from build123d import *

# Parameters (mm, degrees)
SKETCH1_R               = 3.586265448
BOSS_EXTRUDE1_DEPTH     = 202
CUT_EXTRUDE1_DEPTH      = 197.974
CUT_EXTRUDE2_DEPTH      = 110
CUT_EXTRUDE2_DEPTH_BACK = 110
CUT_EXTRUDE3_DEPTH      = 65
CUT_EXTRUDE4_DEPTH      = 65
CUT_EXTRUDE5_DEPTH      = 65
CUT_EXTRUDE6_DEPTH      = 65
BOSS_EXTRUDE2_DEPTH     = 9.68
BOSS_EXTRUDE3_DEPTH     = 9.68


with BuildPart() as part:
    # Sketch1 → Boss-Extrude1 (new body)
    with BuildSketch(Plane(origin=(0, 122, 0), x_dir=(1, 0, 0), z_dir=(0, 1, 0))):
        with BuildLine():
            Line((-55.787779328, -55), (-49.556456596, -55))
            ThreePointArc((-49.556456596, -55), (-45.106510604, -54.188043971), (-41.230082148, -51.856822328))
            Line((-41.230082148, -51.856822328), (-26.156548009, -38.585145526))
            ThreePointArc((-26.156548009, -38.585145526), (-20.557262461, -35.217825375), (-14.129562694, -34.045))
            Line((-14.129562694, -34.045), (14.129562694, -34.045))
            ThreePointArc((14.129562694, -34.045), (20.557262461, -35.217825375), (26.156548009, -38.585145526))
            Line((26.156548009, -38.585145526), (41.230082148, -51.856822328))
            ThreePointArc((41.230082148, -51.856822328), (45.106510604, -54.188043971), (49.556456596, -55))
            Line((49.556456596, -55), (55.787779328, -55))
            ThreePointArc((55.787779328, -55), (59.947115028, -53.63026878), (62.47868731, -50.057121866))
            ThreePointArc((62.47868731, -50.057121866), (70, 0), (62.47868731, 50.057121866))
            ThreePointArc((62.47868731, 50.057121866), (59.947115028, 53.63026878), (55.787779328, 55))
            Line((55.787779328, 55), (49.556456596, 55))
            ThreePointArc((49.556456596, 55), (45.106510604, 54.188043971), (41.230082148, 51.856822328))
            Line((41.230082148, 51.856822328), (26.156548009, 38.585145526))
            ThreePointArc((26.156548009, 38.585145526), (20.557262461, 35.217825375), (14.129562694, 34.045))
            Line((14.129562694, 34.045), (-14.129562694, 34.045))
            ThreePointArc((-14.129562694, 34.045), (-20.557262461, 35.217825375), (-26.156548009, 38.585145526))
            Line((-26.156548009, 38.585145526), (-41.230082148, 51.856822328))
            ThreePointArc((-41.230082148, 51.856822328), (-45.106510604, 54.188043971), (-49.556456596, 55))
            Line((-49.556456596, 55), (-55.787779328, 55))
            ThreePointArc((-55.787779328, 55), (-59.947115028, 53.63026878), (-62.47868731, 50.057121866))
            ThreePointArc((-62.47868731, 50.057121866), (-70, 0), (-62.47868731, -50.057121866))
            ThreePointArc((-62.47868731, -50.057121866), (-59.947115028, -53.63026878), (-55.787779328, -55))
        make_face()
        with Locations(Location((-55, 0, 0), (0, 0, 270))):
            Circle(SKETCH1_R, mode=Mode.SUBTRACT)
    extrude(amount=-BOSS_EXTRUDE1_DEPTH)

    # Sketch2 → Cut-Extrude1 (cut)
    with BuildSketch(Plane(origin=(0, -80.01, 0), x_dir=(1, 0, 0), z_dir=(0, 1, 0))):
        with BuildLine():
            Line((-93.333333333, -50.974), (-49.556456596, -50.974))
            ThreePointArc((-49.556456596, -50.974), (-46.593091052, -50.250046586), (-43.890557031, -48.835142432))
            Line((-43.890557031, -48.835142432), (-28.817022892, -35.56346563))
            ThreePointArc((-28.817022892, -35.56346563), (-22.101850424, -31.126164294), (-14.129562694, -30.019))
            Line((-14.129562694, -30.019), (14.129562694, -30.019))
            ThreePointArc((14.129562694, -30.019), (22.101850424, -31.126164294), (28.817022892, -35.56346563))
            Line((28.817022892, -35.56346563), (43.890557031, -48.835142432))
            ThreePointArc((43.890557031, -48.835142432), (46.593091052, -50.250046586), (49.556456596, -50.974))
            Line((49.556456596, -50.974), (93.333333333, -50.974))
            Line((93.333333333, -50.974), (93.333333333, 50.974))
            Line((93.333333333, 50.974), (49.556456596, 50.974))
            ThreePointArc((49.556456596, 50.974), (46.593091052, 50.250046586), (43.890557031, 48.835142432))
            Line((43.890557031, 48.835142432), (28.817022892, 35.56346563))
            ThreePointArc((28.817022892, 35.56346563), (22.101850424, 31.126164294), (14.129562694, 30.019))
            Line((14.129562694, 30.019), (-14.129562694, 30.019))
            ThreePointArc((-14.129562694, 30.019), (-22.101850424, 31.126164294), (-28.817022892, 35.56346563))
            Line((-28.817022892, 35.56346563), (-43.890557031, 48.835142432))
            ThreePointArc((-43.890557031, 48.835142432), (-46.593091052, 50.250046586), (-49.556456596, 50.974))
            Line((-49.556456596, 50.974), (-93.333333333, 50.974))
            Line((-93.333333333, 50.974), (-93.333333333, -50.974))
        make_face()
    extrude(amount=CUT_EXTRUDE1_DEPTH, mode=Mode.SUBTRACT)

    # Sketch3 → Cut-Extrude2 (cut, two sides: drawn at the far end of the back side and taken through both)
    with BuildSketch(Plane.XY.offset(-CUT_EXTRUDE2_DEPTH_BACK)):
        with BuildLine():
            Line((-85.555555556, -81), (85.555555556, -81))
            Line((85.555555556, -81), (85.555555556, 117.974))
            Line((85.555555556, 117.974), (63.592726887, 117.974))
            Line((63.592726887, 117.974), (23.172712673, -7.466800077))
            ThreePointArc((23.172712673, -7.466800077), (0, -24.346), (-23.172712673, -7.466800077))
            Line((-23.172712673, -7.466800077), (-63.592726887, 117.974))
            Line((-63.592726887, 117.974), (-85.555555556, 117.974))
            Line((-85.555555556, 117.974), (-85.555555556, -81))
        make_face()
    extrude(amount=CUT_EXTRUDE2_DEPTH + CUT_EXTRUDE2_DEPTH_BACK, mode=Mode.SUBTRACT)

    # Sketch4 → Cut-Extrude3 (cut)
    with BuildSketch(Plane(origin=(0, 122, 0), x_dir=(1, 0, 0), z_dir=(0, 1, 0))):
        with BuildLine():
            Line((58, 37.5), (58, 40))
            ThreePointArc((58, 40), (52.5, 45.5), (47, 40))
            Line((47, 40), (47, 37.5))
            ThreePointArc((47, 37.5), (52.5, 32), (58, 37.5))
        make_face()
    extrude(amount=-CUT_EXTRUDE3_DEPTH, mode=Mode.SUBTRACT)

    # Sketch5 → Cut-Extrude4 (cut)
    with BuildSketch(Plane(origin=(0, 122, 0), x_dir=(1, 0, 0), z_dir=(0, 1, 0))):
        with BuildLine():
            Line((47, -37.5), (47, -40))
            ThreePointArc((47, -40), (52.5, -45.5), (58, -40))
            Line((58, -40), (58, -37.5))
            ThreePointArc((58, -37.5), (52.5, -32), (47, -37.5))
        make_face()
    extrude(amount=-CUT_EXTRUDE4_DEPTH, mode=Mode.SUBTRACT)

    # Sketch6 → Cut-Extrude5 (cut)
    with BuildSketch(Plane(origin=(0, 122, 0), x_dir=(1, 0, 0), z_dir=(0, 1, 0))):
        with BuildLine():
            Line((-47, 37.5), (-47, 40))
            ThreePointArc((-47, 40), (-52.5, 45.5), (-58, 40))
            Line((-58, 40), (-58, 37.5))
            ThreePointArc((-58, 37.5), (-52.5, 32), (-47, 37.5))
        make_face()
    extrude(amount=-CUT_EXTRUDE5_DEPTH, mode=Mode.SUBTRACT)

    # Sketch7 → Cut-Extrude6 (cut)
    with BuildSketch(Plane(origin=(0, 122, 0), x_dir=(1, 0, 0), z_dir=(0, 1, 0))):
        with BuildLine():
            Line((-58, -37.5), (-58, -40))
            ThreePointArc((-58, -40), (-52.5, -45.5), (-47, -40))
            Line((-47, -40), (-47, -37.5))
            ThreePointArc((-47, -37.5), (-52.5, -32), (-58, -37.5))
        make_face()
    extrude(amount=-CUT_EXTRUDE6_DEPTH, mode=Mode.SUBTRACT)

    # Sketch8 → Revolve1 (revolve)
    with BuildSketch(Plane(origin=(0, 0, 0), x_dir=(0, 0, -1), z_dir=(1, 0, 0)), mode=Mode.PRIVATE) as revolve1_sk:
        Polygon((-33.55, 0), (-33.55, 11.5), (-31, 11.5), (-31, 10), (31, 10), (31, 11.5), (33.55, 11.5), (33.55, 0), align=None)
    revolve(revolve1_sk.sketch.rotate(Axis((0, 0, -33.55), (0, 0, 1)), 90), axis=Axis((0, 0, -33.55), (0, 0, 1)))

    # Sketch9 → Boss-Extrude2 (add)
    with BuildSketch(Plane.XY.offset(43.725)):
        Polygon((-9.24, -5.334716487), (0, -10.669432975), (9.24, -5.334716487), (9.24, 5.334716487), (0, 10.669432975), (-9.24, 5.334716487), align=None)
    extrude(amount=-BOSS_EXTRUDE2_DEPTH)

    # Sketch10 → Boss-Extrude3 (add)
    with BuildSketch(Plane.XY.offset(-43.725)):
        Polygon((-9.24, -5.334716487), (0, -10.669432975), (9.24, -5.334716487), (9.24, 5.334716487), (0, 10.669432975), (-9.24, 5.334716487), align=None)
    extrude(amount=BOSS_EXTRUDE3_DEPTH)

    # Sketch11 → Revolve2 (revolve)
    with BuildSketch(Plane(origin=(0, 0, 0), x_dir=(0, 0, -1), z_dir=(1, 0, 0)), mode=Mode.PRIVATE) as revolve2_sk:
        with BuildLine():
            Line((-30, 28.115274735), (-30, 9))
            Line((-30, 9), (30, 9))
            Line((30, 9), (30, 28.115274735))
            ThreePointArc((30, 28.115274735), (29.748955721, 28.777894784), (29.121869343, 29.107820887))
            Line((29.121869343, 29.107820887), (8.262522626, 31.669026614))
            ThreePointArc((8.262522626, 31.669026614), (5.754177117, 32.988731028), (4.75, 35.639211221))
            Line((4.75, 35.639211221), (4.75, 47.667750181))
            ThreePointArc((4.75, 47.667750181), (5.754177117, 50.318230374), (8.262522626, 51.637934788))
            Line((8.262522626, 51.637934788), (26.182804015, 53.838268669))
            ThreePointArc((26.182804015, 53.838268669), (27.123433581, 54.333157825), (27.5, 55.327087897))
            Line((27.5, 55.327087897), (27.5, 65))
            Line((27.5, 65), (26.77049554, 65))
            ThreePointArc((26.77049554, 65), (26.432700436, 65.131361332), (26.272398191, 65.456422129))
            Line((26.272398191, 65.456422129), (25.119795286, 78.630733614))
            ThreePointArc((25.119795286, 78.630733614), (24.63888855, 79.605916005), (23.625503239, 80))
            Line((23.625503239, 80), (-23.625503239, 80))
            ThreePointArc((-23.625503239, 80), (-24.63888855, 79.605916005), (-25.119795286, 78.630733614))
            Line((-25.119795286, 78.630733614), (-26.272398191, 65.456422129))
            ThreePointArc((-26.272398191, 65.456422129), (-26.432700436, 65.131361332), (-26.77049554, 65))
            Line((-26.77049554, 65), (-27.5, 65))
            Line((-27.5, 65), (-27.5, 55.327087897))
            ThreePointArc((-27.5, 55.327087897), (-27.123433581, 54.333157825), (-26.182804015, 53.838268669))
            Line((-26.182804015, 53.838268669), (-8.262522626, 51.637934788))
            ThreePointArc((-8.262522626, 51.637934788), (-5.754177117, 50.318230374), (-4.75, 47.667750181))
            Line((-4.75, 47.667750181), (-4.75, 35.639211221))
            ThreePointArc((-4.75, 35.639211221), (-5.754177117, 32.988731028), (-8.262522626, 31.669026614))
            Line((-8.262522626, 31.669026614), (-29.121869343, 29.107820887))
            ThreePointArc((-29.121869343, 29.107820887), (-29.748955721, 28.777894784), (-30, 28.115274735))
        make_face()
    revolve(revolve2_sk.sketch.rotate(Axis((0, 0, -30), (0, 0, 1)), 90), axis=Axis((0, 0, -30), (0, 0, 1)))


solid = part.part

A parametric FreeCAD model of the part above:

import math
import FreeCAD as App
import Part
import Sketcher

V = App.Vector
Q = App.Units.Quantity


def add_polygon(sketch, points):
    """Adds a closed chain of lines whose ends are joined by coincident constraints."""
    first, n = sketch.GeometryCount, len(points)
    for a, b in zip(points, points[1:] + points[:1]):
        sketch.addGeometry(Part.LineSegment(App.Vector(*a, 0), App.Vector(*b, 0)), False)
    for i in range(n):
        sketch.addConstraint(Sketcher.Constraint("Coincident", first + i, 2, first + (i + 1) % n, 1))

doc = App.newDocument("Part")
params = doc.addObject("Spreadsheet::Sheet", "Params")
for row, (alias, value) in enumerate([
    ("sketch1_radius", "7 mm"),
    ("sketch1_radius2", "12.6 mm"),
    ("sketch1_radius3", "18.2 mm"),
    ("pad1_length", "202 mm"),
    ("sketch2_radius", "12.6 mm"),
    ("sketch2_radius2", "18.2 mm"),
    ("pocket1_length", "197.974 mm"),
    ("sketch4_radius", "5.5 mm"),
    ("sketch4_height", "2.5 mm"),
    ("pocket3_length", "65 mm"),
    ("sketch5_radius", "5.5 mm"),
    ("sketch5_height", "2.5 mm"),
    ("pocket4_length", "65 mm"),
    ("sketch6_radius", "5.5 mm"),
    ("sketch6_height", "2.5 mm"),
    ("pocket5_length", "65 mm"),
    ("sketch7_radius", "5.5 mm"),
    ("sketch7_height", "2.5 mm"),
    ("pocket6_length", "65 mm"),
    ("sketch8_height", "62 mm"),
    ("sketch8_width", "11.5 mm"),
    ("sketch8_width2", "1.5 mm"),
    ("sketch8_height2", "67.1 mm"),
    ("revolution_angle", "360 deg"),
    ("pad2_length", "9.68 mm"),
    ("pad3_length", "9.68 mm"),
    ("sketch11_radius", "1 mm"),
    ("sketch11_radius2", "4 mm"),
    ("sketch11_radius3", "1.5 mm"),
    ("sketch11_radius4", "0.5 mm"),
    ("sketch11_height", "60 mm"),
    ("revolution2_angle", "360 deg"),
], start=1):
    params.set(f"A{row}", alias)
    params.set(f"B{row}", "=" + value)
    params.setAlias(f"B{row}", alias)

body = doc.addObject("PartDesign::Body", "Body")

# Sketch on XZ plane
sketch1 = body.newObject("Sketcher::SketchObject", "Sketch")
sketch1.AttachmentSupport = (doc.getObject("XZ_Plane"), [""])
sketch1.MapMode = "FlatFace"
sketch1.AttachmentOffset = App.Placement(V(0, 0, -122), App.Rotation())
sketch1.addGeometry(Part.LineSegment(V(-55.8, 55, 0), V(-49.6, 55, 0)), False)
sketch1.addGeometry(Part.ArcOfCircle(Part.Circle(V(-49.6, 42.4, 0), V(0, 0, 1), 12.6), math.radians(49), math.radians(90)), False)
sketch1.addGeometry(Part.LineSegment(V(-41.2, 51.9, 0), V(-26.2, 38.6, 0)), False)
sketch1.addGeometry(Part.ArcOfCircle(Part.Circle(V(-14.1, 52.2, 0), V(0, 0, 1), 18.2), math.radians(-131), math.radians(-90)), False)
sketch1.addGeometry(Part.LineSegment(V(-14.1, 34, 0), V(14.1, 34, 0)), False)
sketch1.addGeometry(Part.ArcOfCircle(Part.Circle(V(14.1, 52.2, 0), V(0, 0, 1), 18.2), math.radians(-90), math.radians(-49)), False)
sketch1.addGeometry(Part.LineSegment(V(26.2, 38.6, 0), V(41.2, 51.9, 0)), False)
sketch1.addGeometry(Part.ArcOfCircle(Part.Circle(V(49.6, 42.4, 0), V(0, 0, 1), 12.6), math.radians(90), math.radians(131)), False)
sketch1.addGeometry(Part.LineSegment(V(49.6, 55, 0), V(55.8, 55, 0)), False)
sketch1.addGeometry(Part.ArcOfCircle(Part.Circle(V(55.8, 48, 0), V(0, 0, 1), 7), math.radians(17), math.radians(90)), False)
sketch1.addGeometry(Part.ArcOfCircle(Part.Circle(V(-100.3, 0, 0), V(0, 0, 1), 170.3), math.radians(-17), math.radians(17)), False)
sketch1.addGeometry(Part.ArcOfCircle(Part.Circle(V(55.8, -48, 0), V(0, 0, 1), 7), math.radians(-90), math.radians(-17)), False)
sketch1.addGeometry(Part.LineSegment(V(55.8, -55, 0), V(49.6, -55, 0)), False)
sketch1.addGeometry(Part.ArcOfCircle(Part.Circle(V(49.6, -42.4, 0), V(0, 0, 1), 12.6), math.radians(-131), math.radians(-90)), False)
sketch1.addGeometry(Part.LineSegment(V(41.2, -51.9, 0), V(26.2, -38.6, 0)), False)
sketch1.addGeometry(Part.ArcOfCircle(Part.Circle(V(14.1, -52.2, 0), V(0, 0, 1), 18.2), math.radians(49), math.radians(90)), False)
sketch1.addGeometry(Part.LineSegment(V(14.1, -34, 0), V(-14.1, -34, 0)), False)
sketch1.addGeometry(Part.ArcOfCircle(Part.Circle(V(-14.1, -52.2, 0), V(0, 0, 1), 18.2), math.radians(90), math.radians(131)), False)
sketch1.addGeometry(Part.LineSegment(V(-26.2, -38.6, 0), V(-41.2, -51.9, 0)), False)
sketch1.addGeometry(Part.ArcOfCircle(Part.Circle(V(-49.6, -42.4, 0), V(0, 0, 1), 12.6), math.radians(-90), math.radians(-49)), False)
sketch1.addGeometry(Part.LineSegment(V(-49.6, -55, 0), V(-55.8, -55, 0)), False)
sketch1.addGeometry(Part.ArcOfCircle(Part.Circle(V(-55.8, -48, 0), V(0, 0, 1), 7), math.radians(-163), math.radians(-90)), False)
sketch1.addGeometry(Part.ArcOfCircle(Part.Circle(V(100.3, 0, 0), V(0, 0, 1), 170.3), math.radians(163), math.radians(197)), False)
sketch1.addGeometry(Part.ArcOfCircle(Part.Circle(V(-55.8, 48, 0), V(0, 0, 1), 7), math.radians(90), math.radians(163)), False)
sketch1.addGeometry(Part.Circle(V(-55, 0, 0), V(0, 0, 1), 3.6), False)
sketch1.addConstraint(Sketcher.Constraint("Tangent", 0, 2, 1, 2))
sketch1.addConstraint(Sketcher.Constraint("Tangent", 1, 1, 2, 1))
sketch1.addConstraint(Sketcher.Constraint("Tangent", 2, 2, 3, 1))
sketch1.addConstraint(Sketcher.Constraint("Tangent", 3, 2, 4, 1))
sketch1.addConstraint(Sketcher.Constraint("Tangent", 4, 2, 5, 1))
sketch1.addConstraint(Sketcher.Constraint("Tangent", 5, 2, 6, 1))
sketch1.addConstraint(Sketcher.Constraint("Tangent", 6, 2, 7, 2))
sketch1.addConstraint(Sketcher.Constraint("Tangent", 7, 1, 8, 1))
sketch1.addConstraint(Sketcher.Constraint("Tangent", 8, 2, 9, 2))
sketch1.addConstraint(Sketcher.Constraint("Tangent", 9, 1, 10, 2))
sketch1.addConstraint(Sketcher.Constraint("Tangent", 10, 1, 11, 2))
sketch1.addConstraint(Sketcher.Constraint("Tangent", 11, 1, 12, 1))
sketch1.addConstraint(Sketcher.Constraint("Tangent", 12, 2, 13, 2))
sketch1.addConstraint(Sketcher.Constraint("Tangent", 13, 1, 14, 1))
sketch1.addConstraint(Sketcher.Constraint("Tangent", 14, 2, 15, 1))
sketch1.addConstraint(Sketcher.Constraint("Tangent", 15, 2, 16, 1))
sketch1.addConstraint(Sketcher.Constraint("Tangent", 16, 2, 17, 1))
sketch1.addConstraint(Sketcher.Constraint("Tangent", 17, 2, 18, 1))
sketch1.addConstraint(Sketcher.Constraint("Tangent", 18, 2, 19, 2))
sketch1.addConstraint(Sketcher.Constraint("Tangent", 19, 1, 20, 1))
sketch1.addConstraint(Sketcher.Constraint("Tangent", 20, 2, 21, 2))
sketch1.addConstraint(Sketcher.Constraint("Tangent", 21, 1, 22, 2))
sketch1.addConstraint(Sketcher.Constraint("Tangent", 22, 1, 23, 2))
sketch1.addConstraint(Sketcher.Constraint("Tangent", 23, 1, 0, 1))
sketch1.addConstraint(Sketcher.Constraint("Horizontal", 0))
sketch1.addConstraint(Sketcher.Constraint("Horizontal", 4))
sketch1.addConstraint(Sketcher.Constraint("Horizontal", 8))
sketch1.addConstraint(Sketcher.Constraint("Horizontal", 12))
sketch1.addConstraint(Sketcher.Constraint("Horizontal", 16))
sketch1.addConstraint(Sketcher.Constraint("Horizontal", 20))
sketch1.addConstraint(Sketcher.Constraint("Equal", 3, 5))
sketch1.addConstraint(Sketcher.Constraint("Equal", 1, 7))
sketch1.addConstraint(Sketcher.Constraint("Equal", 9, 11))
sketch1.addConstraint(Sketcher.Constraint("Equal", 7, 13))
sketch1.addConstraint(Sketcher.Constraint("Equal", 5, 15))
sketch1.addConstraint(Sketcher.Constraint("Equal", 15, 17))
sketch1.addConstraint(Sketcher.Constraint("Equal", 13, 19))
sketch1.addConstraint(Sketcher.Constraint("Equal", 11, 21))
sketch1.addConstraint(Sketcher.Constraint("Equal", 10, 22))
sketch1.addConstraint(Sketcher.Constraint("Equal", 21, 23))
sketch1.addConstraint(Sketcher.Constraint("Symmetric", 1, 3, 13, 3, -1, 1))
sketch1.addConstraint(Sketcher.Constraint("Symmetric", 3, 3, 15, 3, -1, 1))
sketch1.addConstraint(Sketcher.Constraint("Symmetric", 7, 3, 19, 3, -1, 1))
sketch1.addConstraint(Sketcher.Constraint("Symmetric", 10, 3, 22, 3, -1, 1))
sketch1.addConstraint(Sketcher.Constraint("Symmetric", 1, 3, 7, 3, -2))
sketch1.addConstraint(Sketcher.Constraint("PointOnObject", 10, 3, -1))
sketch1.addConstraint(Sketcher.Constraint("PointOnObject", 24, 3, -1))
sketch1.addConstraint(Sketcher.Constraint("Parallel", 6, 18))
sketch1.addConstraint(Sketcher.Constraint("Horizontal", 2, 2, 5, 2))
sketch1.addConstraint(Sketcher.Constraint("Radius", 9, 7.0))
sketch1.addConstraint(Sketcher.Constraint("Radius", 1, 12.6))
sketch1.addConstraint(Sketcher.Constraint("Radius", 3, 18.2))
sketch1.addConstraint(Sketcher.Constraint("DistanceY", -1, 1, 9, 3, 48.0))
sketch1.addConstraint(Sketcher.Constraint("DistanceX", 24, 3, -1, 1, 55.0))
sketch1.addConstraint(Sketcher.Constraint("Radius", 10, 170.335))
sketch1.addConstraint(Sketcher.Constraint("Diameter", 24, 7.172531))
sketch1.addConstraint(Sketcher.Constraint("DistanceY", 15, 3, 5, 3, 104.49))
sketch1.addConstraint(Sketcher.Constraint("DistanceX", 10, 3, -1, 1, 100.335))
sketch1.addConstraint(Sketcher.Constraint("DistanceY", 9, 1, 6, 2, 1.7997))
sketch1.addConstraint(Sketcher.Constraint("DistanceX", 0, 1, 0, 2, 6.231323))
sketch1.setExpression("Constraints[49]", "Params.sketch1_radius")
sketch1.setExpression("Constraints[50]", "Params.sketch1_radius2")
sketch1.setExpression("Constraints[51]", "Params.sketch1_radius3")
pad1 = body.newObject("PartDesign::Pad", "Pad")
pad1.Profile = sketch1
pad1.setExpression("Length", "Params.pad1_length")

# Sketch on XZ plane
sketch2 = body.newObject("Sketcher::SketchObject", "Sketch001")
sketch2.AttachmentSupport = (doc.getObject("XZ_Plane"), [""])
sketch2.MapMode = "FlatFace"
sketch2.AttachmentOffset = App.Placement(V(0, 0, 80.01), App.Rotation())
sketch2.addGeometry(Part.LineSegment(V(-93, 51, 0), V(-50, 51, 0)), False)
sketch2.addGeometry(Part.ArcOfCircle(Part.Circle(V(-51, 38, 0), V(0, 0, 1), 13), math.radians(55), math.radians(83)), False)
sketch2.addGeometry(Part.LineSegment(V(-44, 49, 0), V(-29, 36, 0)), False)
sketch2.addGeometry(Part.ArcOfCircle(Part.Circle(V(-16, 48, 0), V(0, 0, 1), 18), math.radians(-136), math.radians(-85)), False)
sketch2.addGeometry(Part.LineSegment(V(-14, 30, 0), V(14, 30, 0)), False)
sketch2.addGeometry(Part.ArcOfCircle(Part.Circle(V(16, 48, 0), V(0, 0, 1), 18), math.radians(-95), math.radians(-44)), False)
sketch2.addGeometry(Part.LineSegment(V(29, 36, 0), V(44, 49, 0)), False)
sketch2.addGeometry(Part.ArcOfCircle(Part.Circle(V(51, 38, 0), V(0, 0, 1), 13), math.radians(97), math.radians(125)), False)
sketch2.addGeometry(Part.LineSegment(V(50, 51, 0), V(93, 51, 0)), False)
sketch2.addGeometry(Part.LineSegment(V(93, 51, 0), V(93, -51, 0)), False)
sketch2.addGeometry(Part.LineSegment(V(93, -51, 0), V(50, -51, 0)), False)
sketch2.addGeometry(Part.ArcOfCircle(Part.Circle(V(51, -38, 0), V(0, 0, 1), 13), math.radians(-125), math.radians(-97)), False)
sketch2.addGeometry(Part.LineSegment(V(44, -49, 0), V(29, -36, 0)), False)
sketch2.addGeometry(Part.ArcOfCircle(Part.Circle(V(16, -48, 0), V(0, 0, 1), 18), math.radians(44), math.radians(95)), False)
sketch2.addGeometry(Part.LineSegment(V(14, -30, 0), V(-14, -30, 0)), False)
sketch2.addGeometry(Part.ArcOfCircle(Part.Circle(V(-16, -48, 0), V(0, 0, 1), 18), math.radians(85), math.radians(136)), False)
sketch2.addGeometry(Part.LineSegment(V(-29, -36, 0), V(-44, -49, 0)), False)
sketch2.addGeometry(Part.ArcOfCircle(Part.Circle(V(-51, -38, 0), V(0, 0, 1), 13), math.radians(-83), math.radians(-55)), False)
sketch2.addGeometry(Part.LineSegment(V(-50, -51, 0), V(-93, -51, 0)), False)
sketch2.addGeometry(Part.LineSegment(V(-93, -51, 0), V(-93, 51, 0)), False)
sketch2.addConstraint(Sketcher.Constraint("Coincident", 0, 2, 1, 2))
sketch2.addConstraint(Sketcher.Constraint("Coincident", 1, 1, 2, 1))
sketch2.addConstraint(Sketcher.Constraint("Coincident", 2, 2, 3, 1))
sketch2.addConstraint(Sketcher.Constraint("Coincident", 3, 2, 4, 1))
sketch2.addConstraint(Sketcher.Constraint("Coincident", 4, 2, 5, 1))
sketch2.addConstraint(Sketcher.Constraint("Coincident", 5, 2, 6, 1))
sketch2.addConstraint(Sketcher.Constraint("Coincident", 6, 2, 7, 2))
sketch2.addConstraint(Sketcher.Constraint("Coincident", 7, 1, 8, 1))
sketch2.addConstraint(Sketcher.Constraint("Coincident", 8, 2, 9, 1))
sketch2.addConstraint(Sketcher.Constraint("Coincident", 9, 2, 10, 1))
sketch2.addConstraint(Sketcher.Constraint("Coincident", 10, 2, 11, 2))
sketch2.addConstraint(Sketcher.Constraint("Coincident", 11, 1, 12, 1))
sketch2.addConstraint(Sketcher.Constraint("Coincident", 12, 2, 13, 1))
sketch2.addConstraint(Sketcher.Constraint("Coincident", 13, 2, 14, 1))
sketch2.addConstraint(Sketcher.Constraint("Coincident", 14, 2, 15, 1))
sketch2.addConstraint(Sketcher.Constraint("Coincident", 15, 2, 16, 1))
sketch2.addConstraint(Sketcher.Constraint("Coincident", 16, 2, 17, 2))
sketch2.addConstraint(Sketcher.Constraint("Coincident", 17, 1, 18, 1))
sketch2.addConstraint(Sketcher.Constraint("Coincident", 18, 2, 19, 1))
sketch2.addConstraint(Sketcher.Constraint("Coincident", 19, 2, 0, 1))
sketch2.addConstraint(Sketcher.Constraint("Horizontal", 0))
sketch2.addConstraint(Sketcher.Constraint("Horizontal", 4))
sketch2.addConstraint(Sketcher.Constraint("Horizontal", 8))
sketch2.addConstraint(Sketcher.Constraint("Vertical", 9))
sketch2.addConstraint(Sketcher.Constraint("Horizontal", 10))
sketch2.addConstraint(Sketcher.Constraint("Horizontal", 14))
sketch2.addConstraint(Sketcher.Constraint("Horizontal", 18))
sketch2.addConstraint(Sketcher.Constraint("Vertical", 19))
sketch2.addConstraint(Sketcher.Constraint("Equal", 3, 5))
sketch2.addConstraint(Sketcher.Constraint("Equal", 1, 7))
sketch2.addConstraint(Sketcher.Constraint("Equal", 7, 11))
sketch2.addConstraint(Sketcher.Constraint("Equal", 5, 13))
sketch2.addConstraint(Sketcher.Constraint("Equal", 13, 15))
sketch2.addConstraint(Sketcher.Constraint("Equal", 11, 17))
sketch2.addConstraint(Sketcher.Constraint("Symmetric", 1, 3, 11, 3, -1, 1))
sketch2.addConstraint(Sketcher.Constraint("Symmetric", 3, 3, 13, 3, -1, 1))
sketch2.addConstraint(Sketcher.Constraint("Symmetric", 5, 3, 15, 3, -1, 1))
sketch2.addConstraint(Sketcher.Constraint("Symmetric", 7, 3, 17, 3, -1, 1))
sketch2.addConstraint(Sketcher.Constraint("Symmetric", 8, 2, 18, 2, -1, 1))
sketch2.addConstraint(Sketcher.Constraint("Symmetric", 3, 3, 5, 3, -2))
sketch2.addConstraint(Sketcher.Constraint("Symmetric", 1, 3, 7, 3, -2))
sketch2.addConstraint(Sketcher.Constraint("Parallel", 2, 12))
sketch2.addConstraint(Sketcher.Constraint("Parallel", 6, 16))
sketch2.addConstraint(Sketcher.Constraint("Horizontal", 2, 2, 5, 2))
sketch2.addConstraint(Sketcher.Constraint("Horizontal", 1, 1, 6, 2))
sketch2.addConstraint(Sketcher.Constraint("Horizontal", 0, 2, 7, 1))
sketch2.addConstraint(Sketcher.Constraint("Horizontal", 12, 2, 15, 2))
sketch2.addConstraint(Sketcher.Constraint("Horizontal", 10, 2, 17, 1))
sketch2.addConstraint(Sketcher.Constraint("Vertical", 6, 2, 11, 1))
sketch2.addConstraint(Sketcher.Constraint("Vertical", 4, 2, 13, 2))
sketch2.addConstraint(Sketcher.Constraint("Radius", 1, 12.6))
sketch2.addConstraint(Sketcher.Constraint("Radius", 3, 18.2))
sketch2.addConstraint(Sketcher.Constraint("DistanceY", 9, 2, 9, 1, 101.948))
sketch2.addConstraint(Sketcher.Constraint("DistanceY", -1, 1, 3, 2, 30.019))
sketch2.addConstraint(Sketcher.Constraint("DistanceX", 3, 3, 5, 3, 31.348301))
sketch2.addConstraint(Sketcher.Constraint("DistanceX", 0, 2, 1, 1, 5.6659))
sketch2.addConstraint(Sketcher.Constraint("DistanceX", 0, 1, 0, 2, 43.776877))
sketch2.addConstraint(Sketcher.Constraint("DistanceX", 4, 1, 4, 2, 28.259125))
sketch2.addConstraint(Sketcher.Constraint("DistanceY", 11, 3, 5, 3, 86.615342))
sketch2.addConstraint(Sketcher.Constraint("DistanceX", 2, 2, 3, 2, 14.68746))
sketch2.addConstraint(Sketcher.Constraint("DistanceX", 5, 2, 8, 2, 64.51631))
sketch2.setExpression("Constraints[50]", "Params.sketch2_radius")
sketch2.setExpression("Constraints[51]", "Params.sketch2_radius2")
pocket1 = body.newObject("PartDesign::Pocket", "Pocket")
pocket1.Profile = sketch2
pocket1.setExpression("Length", "Params.pocket1_length")

# Sketch on XY plane
sketch3 = body.newObject("Sketcher::SketchObject", "Sketch002")
sketch3.AttachmentSupport = (doc.getObject("XY_Plane"), [""])
sketch3.MapMode = "FlatFace"
sketch3.addGeometry(Part.LineSegment(V(-86, -81, 0), V(86, -81, 0)), False)
sketch3.addGeometry(Part.LineSegment(V(86, -81, 0), V(86, 118, 0)), False)
sketch3.addGeometry(Part.LineSegment(V(86, 118, 0), V(64, 118, 0)), False)
sketch3.addGeometry(Part.LineSegment(V(64, 118, 0), V(23, -7, 0)), False)
sketch3.addGeometry(Part.ArcOfCircle(Part.Circle(V(0, 0, 0), V(0, 0, 1), 24), math.radians(-162), math.radians(-18)), False)
sketch3.addGeometry(Part.LineSegment(V(-23, -7, 0), V(-64, 118, 0)), False)
sketch3.addGeometry(Part.LineSegment(V(-64, 118, 0), V(-86, 118, 0)), False)
sketch3.addGeometry(Part.LineSegment(V(-86, 118, 0), V(-86, -81, 0)), False)
sketch3.addConstraint(Sketcher.Constraint("Coincident", 0, 2, 1, 1))
sketch3.addConstraint(Sketcher.Constraint("Coincident", 1, 2, 2, 1))
sketch3.addConstraint(Sketcher.Constraint("Coincident", 2, 2, 3, 1))
sketch3.addConstraint(Sketcher.Constraint("Tangent", 3, 2, 4, 2))
sketch3.addConstraint(Sketcher.Constraint("Tangent", 4, 1, 5, 1))
sketch3.addConstraint(Sketcher.Constraint("Coincident", 5, 2, 6, 1))
sketch3.addConstraint(Sketcher.Constraint("Coincident", 6, 2, 7, 1))
sketch3.addConstraint(Sketcher.Constraint("Coincident", 7, 2, 0, 1))
sketch3.addConstraint(Sketcher.Constraint("Horizontal", 0))
sketch3.addConstraint(Sketcher.Constraint("Vertical", 1))
sketch3.addConstraint(Sketcher.Constraint("Horizontal", 2))
sketch3.addConstraint(Sketcher.Constraint("Horizontal", 6))
sketch3.addConstraint(Sketcher.Constraint("Vertical", 7))
sketch3.addConstraint(Sketcher.Constraint("Coincident", 4, 3, -1, 1))
sketch3.addConstraint(Sketcher.Constraint("Symmetric", 2, 2, 5, 2, -2))
sketch3.addConstraint(Sketcher.Constraint("Equal", 2, 6))
sketch3.addConstraint(Sketcher.Constraint("DistanceY", 0, 2, -1, 1, 81.0))
sketch3.addConstraint(Sketcher.Constraint("Radius", 4, 24.346))
sketch3.addConstraint(Sketcher.Constraint("DistanceY", 1, 1, 1, 2, 198.974))
sketch3.addConstraint(Sketcher.Constraint("DistanceX", 0, 1, 0, 2, 171.111111))
sketch3.addConstraint(Sketcher.Constraint("DistanceX", 2, 2, 2, 1, 21.962829))
pocket2 = body.newObject("PartDesign::Pocket", "Pocket001")
pocket2.Profile = sketch3
pocket2.Type = "ThroughAll"
pocket2.Midplane = True

# Sketch on XZ plane
sketch4 = body.newObject("Sketcher::SketchObject", "Sketch003")
sketch4.AttachmentSupport = (doc.getObject("XZ_Plane"), [""])
sketch4.MapMode = "FlatFace"
sketch4.AttachmentOffset = App.Placement(V(0, 0, -122), App.Rotation())
sketch4.addGeometry(Part.LineSegment(V(58, -37.5, 0), V(58, -40, 0)), False)
sketch4.addGeometry(Part.ArcOfCircle(Part.Circle(V(52.5, -40, 0), V(0, 0, 1), 5.5), math.radians(180), math.radians(360)), False)
sketch4.addGeometry(Part.LineSegment(V(47, -40, 0), V(47, -37.5, 0)), False)
sketch4.addGeometry(Part.ArcOfCircle(Part.Circle(V(52.5, -37.5, 0), V(0, 0, 1), 5.5), math.radians(0), math.radians(180)), False)
sketch4.addConstraint(Sketcher.Constraint("Tangent", 0, 2, 1, 2))
sketch4.addConstraint(Sketcher.Constraint("Tangent", 1, 1, 2, 1))
sketch4.addConstraint(Sketcher.Constraint("Tangent", 2, 2, 3, 2))
sketch4.addConstraint(Sketcher.Constraint("Tangent", 3, 1, 0, 1))
sketch4.addConstraint(Sketcher.Constraint("Vertical", 0))
sketch4.addConstraint(Sketcher.Constraint("Vertical", 2))
sketch4.addConstraint(Sketcher.Constraint("Radius", 1, 5.5))
sketch4.addConstraint(Sketcher.Constraint("DistanceY", 0, 2, 0, 1, 2.5))
sketch4.addConstraint(Sketcher.Constraint("DistanceY", 1, 3, -1, 1, 40.0))
sketch4.addConstraint(Sketcher.Constraint("DistanceX", -1, 1, 0, 2, 58.0))
sketch4.setExpression("Constraints[6]", "Params.sketch4_radius")
sketch4.setExpression("Constraints[7]", "Params.sketch4_height")
pocket3 = body.newObject("PartDesign::Pocket", "Pocket002")
pocket3.Profile = sketch4
pocket3.setExpression("Length", "Params.pocket3_length")
pocket3.Reversed = True

# Sketch on XZ plane
sketch5 = body.newObject("Sketcher::SketchObject", "Sketch004")
sketch5.AttachmentSupport = (doc.getObject("XZ_Plane"), [""])
sketch5.MapMode = "FlatFace"
sketch5.AttachmentOffset = App.Placement(V(0, 0, -122), App.Rotation())
sketch5.addGeometry(Part.LineSegment(V(47, 37.5, 0), V(47, 40, 0)), False)
sketch5.addGeometry(Part.ArcOfCircle(Part.Circle(V(52.5, 40, 0), V(0, 0, 1), 5.5), math.radians(0), math.radians(180)), False)
sketch5.addGeometry(Part.LineSegment(V(58, 40, 0), V(58, 37.5, 0)), False)
sketch5.addGeometry(Part.ArcOfCircle(Part.Circle(V(52.5, 37.5, 0), V(0, 0, 1), 5.5), math.radians(180), math.radians(360)), False)
sketch5.addConstraint(Sketcher.Constraint("Tangent", 0, 2, 1, 2))
sketch5.addConstraint(Sketcher.Constraint("Tangent", 1, 1, 2, 1))
sketch5.addConstraint(Sketcher.Constraint("Tangent", 2, 2, 3, 2))
sketch5.addConstraint(Sketcher.Constraint("Tangent", 3, 1, 0, 1))
sketch5.addConstraint(Sketcher.Constraint("Vertical", 0))
sketch5.addConstraint(Sketcher.Constraint("Vertical", 2))
sketch5.addConstraint(Sketcher.Constraint("Radius", 1, 5.5))
sketch5.addConstraint(Sketcher.Constraint("DistanceY", 0, 1, 0, 2, 2.5))
sketch5.addConstraint(Sketcher.Constraint("DistanceY", -1, 1, 1, 3, 40.0))
sketch5.addConstraint(Sketcher.Constraint("DistanceX", -1, 1, 0, 2, 47.0))
sketch5.setExpression("Constraints[6]", "Params.sketch5_radius")
sketch5.setExpression("Constraints[7]", "Params.sketch5_height")
pocket4 = body.newObject("PartDesign::Pocket", "Pocket003")
pocket4.Profile = sketch5
pocket4.setExpression("Length", "Params.pocket4_length")
pocket4.Reversed = True

# Sketch on XZ plane
sketch6 = body.newObject("Sketcher::SketchObject", "Sketch005")
sketch6.AttachmentSupport = (doc.getObject("XZ_Plane"), [""])
sketch6.MapMode = "FlatFace"
sketch6.AttachmentOffset = App.Placement(V(0, 0, -122), App.Rotation())
sketch6.addGeometry(Part.LineSegment(V(-47, -37.5, 0), V(-47, -40, 0)), False)
sketch6.addGeometry(Part.ArcOfCircle(Part.Circle(V(-52.5, -40, 0), V(0, 0, 1), 5.5), math.radians(180), math.radians(360)), False)
sketch6.addGeometry(Part.LineSegment(V(-58, -40, 0), V(-58, -37.5, 0)), False)
sketch6.addGeometry(Part.ArcOfCircle(Part.Circle(V(-52.5, -37.5, 0), V(0, 0, 1), 5.5), math.radians(0), math.radians(180)), False)
sketch6.addConstraint(Sketcher.Constraint("Tangent", 0, 2, 1, 2))
sketch6.addConstraint(Sketcher.Constraint("Tangent", 1, 1, 2, 1))
sketch6.addConstraint(Sketcher.Constraint("Tangent", 2, 2, 3, 2))
sketch6.addConstraint(Sketcher.Constraint("Tangent", 3, 1, 0, 1))
sketch6.addConstraint(Sketcher.Constraint("Vertical", 0))
sketch6.addConstraint(Sketcher.Constraint("Vertical", 2))
sketch6.addConstraint(Sketcher.Constraint("Radius", 1, 5.5))
sketch6.addConstraint(Sketcher.Constraint("DistanceY", 0, 2, 0, 1, 2.5))
sketch6.addConstraint(Sketcher.Constraint("DistanceY", 1, 3, -1, 1, 40.0))
sketch6.addConstraint(Sketcher.Constraint("DistanceX", 0, 2, -1, 1, 47.0))
sketch6.setExpression("Constraints[6]", "Params.sketch6_radius")
sketch6.setExpression("Constraints[7]", "Params.sketch6_height")
pocket5 = body.newObject("PartDesign::Pocket", "Pocket004")
pocket5.Profile = sketch6
pocket5.setExpression("Length", "Params.pocket5_length")
pocket5.Reversed = True

# Sketch on XZ plane
sketch7 = body.newObject("Sketcher::SketchObject", "Sketch006")
sketch7.AttachmentSupport = (doc.getObject("XZ_Plane"), [""])
sketch7.MapMode = "FlatFace"
sketch7.AttachmentOffset = App.Placement(V(0, 0, -122), App.Rotation())
sketch7.addGeometry(Part.LineSegment(V(-58, 37.5, 0), V(-58, 40, 0)), False)
sketch7.addGeometry(Part.ArcOfCircle(Part.Circle(V(-52.5, 40, 0), V(0, 0, 1), 5.5), math.radians(0), math.radians(180)), False)
sketch7.addGeometry(Part.LineSegment(V(-47, 40, 0), V(-47, 37.5, 0)), False)
sketch7.addGeometry(Part.ArcOfCircle(Part.Circle(V(-52.5, 37.5, 0), V(0, 0, 1), 5.5), math.radians(180), math.radians(360)), False)
sketch7.addConstraint(Sketcher.Constraint("Tangent", 0, 2, 1, 2))
sketch7.addConstraint(Sketcher.Constraint("Tangent", 1, 1, 2, 1))
sketch7.addConstraint(Sketcher.Constraint("Tangent", 2, 2, 3, 2))
sketch7.addConstraint(Sketcher.Constraint("Tangent", 3, 1, 0, 1))
sketch7.addConstraint(Sketcher.Constraint("Vertical", 0))
sketch7.addConstraint(Sketcher.Constraint("Vertical", 2))
sketch7.addConstraint(Sketcher.Constraint("Radius", 1, 5.5))
sketch7.addConstraint(Sketcher.Constraint("DistanceY", 0, 1, 0, 2, 2.5))
sketch7.addConstraint(Sketcher.Constraint("DistanceY", -1, 1, 1, 3, 40.0))
sketch7.addConstraint(Sketcher.Constraint("DistanceX", 0, 2, -1, 1, 58.0))
sketch7.setExpression("Constraints[6]", "Params.sketch7_radius")
sketch7.setExpression("Constraints[7]", "Params.sketch7_height")
pocket6 = body.newObject("PartDesign::Pocket", "Pocket005")
pocket6.Profile = sketch7
pocket6.setExpression("Length", "Params.pocket6_length")
pocket6.Reversed = True

# Sketch on YZ plane
sketch8 = body.newObject("Sketcher::SketchObject", "Sketch007")
sketch8.AttachmentSupport = (doc.getObject("YZ_Plane"), [""])
sketch8.MapMode = "FlatFace"
add_polygon(sketch8, [(11.5, 33.5), (0, 33.5), (0, -33.5), (11.5, -33.5), (11.5, -31), (10, -31), (10, 31), (11.5, 31)])  # lines 0-7
sketch8.addConstraint(Sketcher.Constraint("Horizontal", 0))
sketch8.addConstraint(Sketcher.Constraint("Vertical", 1))
sketch8.addConstraint(Sketcher.Constraint("Horizontal", 2))
sketch8.addConstraint(Sketcher.Constraint("Vertical", 3))
sketch8.addConstraint(Sketcher.Constraint("Horizontal", 4))
sketch8.addConstraint(Sketcher.Constraint("Vertical", 5))
sketch8.addConstraint(Sketcher.Constraint("Horizontal", 6))
sketch8.addConstraint(Sketcher.Constraint("Vertical", 7))
sketch8.addConstraint(Sketcher.Constraint("Symmetric", 0, 2, 1, 2, -1, 1))
sketch8.addConstraint(Sketcher.Constraint("Symmetric", 3, 2, 6, 2, -1))
sketch8.addConstraint(Sketcher.Constraint("DistanceY", 5, 1, 5, 2, 62.0))
sketch8.addConstraint(Sketcher.Constraint("DistanceX", 0, 2, 0, 1, 11.5))
sketch8.addConstraint(Sketcher.Constraint("DistanceX", 4, 2, 4, 1, 1.5))
sketch8.addConstraint(Sketcher.Constraint("DistanceY", 1, 2, 1, 1, 67.1))
sketch8.setExpression("Constraints[18]", "Params.sketch8_height")
sketch8.setExpression("Constraints[19]", "Params.sketch8_width")
sketch8.setExpression("Constraints[20]", "Params.sketch8_width2")
sketch8.setExpression("Constraints[21]", "Params.sketch8_height2")
revolution = body.newObject("PartDesign::Revolution", "Revolution")
revolution.Profile = sketch8
revolution.ReferenceAxis = (sketch8, ["V_Axis"])
revolution.setExpression("Angle", "Params.revolution_angle")

# Sketch on XY plane
sketch9 = body.newObject("Sketcher::SketchObject", "Sketch008")
sketch9.AttachmentSupport = (doc.getObject("XY_Plane"), [""])
sketch9.MapMode = "FlatFace"
sketch9.AttachmentOffset = App.Placement(V(0, 0, 43.725), App.Rotation())
add_polygon(sketch9, [(-9, -5), (0, -11), (9, -5), (9, 5), (0, 11), (-9, 5)])  # lines 0-5
sketch9.addConstraint(Sketcher.Constraint("Vertical", 2))
sketch9.addConstraint(Sketcher.Constraint("Vertical", 5))
sketch9.addConstraint(Sketcher.Constraint("Symmetric", 0, 2, 3, 2, -1, 1))
sketch9.addConstraint(Sketcher.Constraint("Symmetric", 1, 2, 4, 2, -1, 1))
sketch9.addConstraint(Sketcher.Constraint("PointOnObject", 0, 2, -2))
sketch9.addConstraint(Sketcher.Constraint("Parallel", 0, 3))
sketch9.addConstraint(Sketcher.Constraint("Horizontal", 2, 2, 4, 2))
sketch9.addConstraint(Sketcher.Constraint("Angle", 0, Q("-30 deg")))
sketch9.addConstraint(Sketcher.Constraint("DistanceX", -1, 1, 1, 2, 9.24))
sketch9.addConstraint(Sketcher.Constraint("DistanceY", 2, 1, 2, 2, 10.669433))
pad2 = body.newObject("PartDesign::Pad", "Pad001")
pad2.Profile = sketch9
pad2.setExpression("Length", "Params.pad2_length")
pad2.Reversed = True

# Sketch on XY plane
sketch10 = body.newObject("Sketcher::SketchObject", "Sketch009")
sketch10.AttachmentSupport = (doc.getObject("XY_Plane"), [""])
sketch10.MapMode = "FlatFace"
sketch10.AttachmentOffset = App.Placement(V(0, 0, -43.725), App.Rotation())
add_polygon(sketch10, [(-9, -5), (0, -11), (9, -5), (9, 5), (0, 11), (-9, 5)])  # lines 0-5
sketch10.addConstraint(Sketcher.Constraint("Vertical", 2))
sketch10.addConstraint(Sketcher.Constraint("Vertical", 5))
sketch10.addConstraint(Sketcher.Constraint("Symmetric", 0, 2, 3, 2, -1, 1))
sketch10.addConstraint(Sketcher.Constraint("Symmetric", 1, 2, 4, 2, -1, 1))
sketch10.addConstraint(Sketcher.Constraint("PointOnObject", 0, 2, -2))
sketch10.addConstraint(Sketcher.Constraint("Parallel", 0, 3))
sketch10.addConstraint(Sketcher.Constraint("Horizontal", 2, 2, 4, 2))
sketch10.addConstraint(Sketcher.Constraint("Angle", 0, Q("-30 deg")))
sketch10.addConstraint(Sketcher.Constraint("DistanceX", -1, 1, 1, 2, 9.24))
sketch10.addConstraint(Sketcher.Constraint("DistanceY", 2, 1, 2, 2, 10.669433))
pad3 = body.newObject("PartDesign::Pad", "Pad002")
pad3.Profile = sketch10
pad3.setExpression("Length", "Params.pad3_length")

# Sketch on YZ plane
sketch11 = body.newObject("Sketcher::SketchObject", "Sketch010")
sketch11.AttachmentSupport = (doc.getObject("YZ_Plane"), [""])
sketch11.MapMode = "FlatFace"
sketch11.addGeometry(Part.LineSegment(V(28.1, 30, 0), V(9, 30, 0)), False)
sketch11.addGeometry(Part.LineSegment(V(9, 30, 0), V(9, -30, 0)), False)
sketch11.addGeometry(Part.LineSegment(V(9, -30, 0), V(28.1, -30, 0)), False)
sketch11.addGeometry(Part.ArcOfCircle(Part.Circle(V(28.1, -29, 0), V(0, 0, 1), 1), math.radians(-90), math.radians(-7)), False)
sketch11.addGeometry(Part.LineSegment(V(29.1, -29.1, 0), V(31.7, -8.3, 0)), False)
sketch11.addGeometry(Part.ArcOfCircle(Part.Circle(V(35.6, -8.8, 0), V(0, 0, 1), 4), math.radians(90), math.radians(173)), False)
sketch11.addGeometry(Part.LineSegment(V(35.6, -4.8, 0), V(47.7, -4.8, 0)), False)
sketch11.addGeometry(Part.ArcOfCircle(Part.Circle(V(47.7, -8.8, 0), V(0, 0, 1), 4), math.radians(7), math.radians(90)), False)
sketch11.addGeometry(Part.LineSegment(V(51.6, -8.3, 0), V(53.8, -26.2, 0)), False)
sketch11.addGeometry(Part.ArcOfCircle(Part.Circle(V(55.3, -26, 0), V(0, 0, 1), 1.5), math.radians(-173), math.radians(-90)), False)
sketch11.addGeometry(Part.LineSegment(V(55.3, -27.5, 0), V(65, -27.5, 0)), False)
sketch11.addGeometry(Part.LineSegment(V(65, -27.5, 0), V(65, -26.8, 0)), False)
sketch11.addGeometry(Part.ArcOfCircle(Part.Circle(V(65.5, -26.8, 0), V(0, 0, 1), 0.5), math.radians(95), math.radians(180)), False)
sketch11.addGeometry(Part.LineSegment(V(65.5, -26.3, 0), V(78.6, -25.1, 0)), False)
sketch11.addGeometry(Part.ArcOfCircle(Part.Circle(V(78.5, -23.6, 0), V(0, 0, 1), 1.5), math.radians(-85), math.radians(0)), False)
sketch11.addGeometry(Part.LineSegment(V(80, -23.6, 0), V(80, 23.6, 0)), False)
sketch11.addGeometry(Part.ArcOfCircle(Part.Circle(V(78.5, 23.6, 0), V(0, 0, 1), 1.5), math.radians(0), math.radians(85)), False)
sketch11.addGeometry(Part.LineSegment(V(78.6, 25.1, 0), V(65.5, 26.3, 0)), False)
sketch11.addGeometry(Part.ArcOfCircle(Part.Circle(V(65.5, 26.8, 0), V(0, 0, 1), 0.5), math.radians(180), math.radians(265)), False)
sketch11.addGeometry(Part.LineSegment(V(65, 26.8, 0), V(65, 27.5, 0)), False)
sketch11.addGeometry(Part.LineSegment(V(65, 27.5, 0), V(55.3, 27.5, 0)), False)
sketch11.addGeometry(Part.ArcOfCircle(Part.Circle(V(55.3, 26, 0), V(0, 0, 1), 1.5), math.radians(90), math.radians(173)), False)
sketch11.addGeometry(Part.LineSegment(V(53.8, 26.2, 0), V(51.6, 8.3, 0)), False)
sketch11.addGeometry(Part.ArcOfCircle(Part.Circle(V(47.7, 8.8, 0), V(0, 0, 1), 4), math.radians(-90), math.radians(-7)), False)
sketch11.addGeometry(Part.LineSegment(V(47.7, 4.8, 0), V(35.6, 4.8, 0)), False)
sketch11.addGeometry(Part.ArcOfCircle(Part.Circle(V(35.6, 8.8, 0), V(0, 0, 1), 4), math.radians(-173), math.radians(-90)), False)
sketch11.addGeometry(Part.LineSegment(V(31.7, 8.3, 0), V(29.1, 29.1, 0)), False)
sketch11.addGeometry(Part.ArcOfCircle(Part.Circle(V(28.1, 29, 0), V(0, 0, 1), 1), math.radians(7), math.radians(90)), False)
sketch11.addConstraint(Sketcher.Constraint("Coincident", 0, 2, 1, 1))
sketch11.addConstraint(Sketcher.Constraint("Coincident", 1, 2, 2, 1))
sketch11.addConstraint(Sketcher.Constraint("Tangent", 2, 2, 3, 1))
sketch11.addConstraint(Sketcher.Constraint("Tangent", 3, 2, 4, 1))
sketch11.addConstraint(Sketcher.Constraint("Tangent", 4, 2, 5, 2))
sketch11.addConstraint(Sketcher.Constraint("Tangent", 5, 1, 6, 1))
sketch11.addConstraint(Sketcher.Constraint("Tangent", 6, 2, 7, 2))
sketch11.addConstraint(Sketcher.Constraint("Tangent", 7, 1, 8, 1))
sketch11.addConstraint(Sketcher.Constraint("Tangent", 8, 2, 9, 1))
sketch11.addConstraint(Sketcher.Constraint("Tangent", 9, 2, 10, 1))
sketch11.addConstraint(Sketcher.Constraint("Coincident", 10, 2, 11, 1))
sketch11.addConstraint(Sketcher.Constraint("Tangent", 11, 2, 12, 2))
sketch11.addConstraint(Sketcher.Constraint("Tangent", 12, 1, 13, 1))
sketch11.addConstraint(Sketcher.Constraint("Tangent", 13, 2, 14, 1))
sketch11.addConstraint(Sketcher.Constraint("Tangent", 14, 2, 15, 1))
sketch11.addConstraint(Sketcher.Constraint("Tangent", 15, 2, 16, 1))
sketch11.addConstraint(Sketcher.Constraint("Tangent", 16, 2, 17, 1))
sketch11.addConstraint(Sketcher.Constraint("Tangent", 17, 2, 18, 2))
sketch11.addConstraint(Sketcher.Constraint("Tangent", 18, 1, 19, 1))
sketch11.addConstraint(Sketcher.Constraint("Coincident", 19, 2, 20, 1))
sketch11.addConstraint(Sketcher.Constraint("Tangent", 20, 2, 21, 1))
sketch11.addConstraint(Sketcher.Constraint("Tangent", 21, 2, 22, 1))
sketch11.addConstraint(Sketcher.Constraint("Tangent", 22, 2, 23, 2))
sketch11.addConstraint(Sketcher.Constraint("Tangent", 23, 1, 24, 1))
sketch11.addConstraint(Sketcher.Constraint("Tangent", 24, 2, 25, 2))
sketch11.addConstraint(Sketcher.Constraint("Tangent", 25, 1, 26, 1))
sketch11.addConstraint(Sketcher.Constraint("Tangent", 26, 2, 27, 1))
sketch11.addConstraint(Sketcher.Constraint("Tangent", 27, 2, 0, 1))
sketch11.addConstraint(Sketcher.Constraint("Horizontal", 0))
sketch11.addConstraint(Sketcher.Constraint("Vertical", 1))
sketch11.addConstraint(Sketcher.Constraint("Horizontal", 2))
sketch11.addConstraint(Sketcher.Constraint("Horizontal", 6))
sketch11.addConstraint(Sketcher.Constraint("Horizontal", 10))
sketch11.addConstraint(Sketcher.Constraint("Vertical", 11))
sketch11.addConstraint(Sketcher.Constraint("Vertical", 15))
sketch11.addConstraint(Sketcher.Constraint("Vertical", 19))
sketch11.addConstraint(Sketcher.Constraint("Horizontal", 20))
sketch11.addConstraint(Sketcher.Constraint("Horizontal", 24))
sketch11.addConstraint(Sketcher.Constraint("Equal", 5, 7))
sketch11.addConstraint(Sketcher.Constraint("Equal", 9, 14))
sketch11.addConstraint(Sketcher.Constraint("Equal", 14, 16))
sketch11.addConstraint(Sketcher.Constraint("Equal", 12, 18))
sketch11.addConstraint(Sketcher.Constraint("Equal", 16, 21))
sketch11.addConstraint(Sketcher.Constraint("Equal", 7, 23))
sketch11.addConstraint(Sketcher.Constraint("Equal", 23, 25))
sketch11.addConstraint(Sketcher.Constraint("Equal", 3, 27))
sketch11.addConstraint(Sketcher.Constraint("Symmetric", 12, 3, 18, 3, -1))
sketch11.addConstraint(Sketcher.Constraint("Symmetric", 9, 3, 21, 3, -1))
sketch11.addConstraint(Sketcher.Constraint("Symmetric", 7, 3, 23, 3, -1))
sketch11.addConstraint(Sketcher.Constraint("Symmetric", 3, 3, 27, 3, -1))
sketch11.addConstraint(Sketcher.Constraint("Parallel", 4, 22))
sketch11.addConstraint(Sketcher.Constraint("Parallel", 8, 26))
sketch11.addConstraint(Sketcher.Constraint("Vertical", 13, 2, 16, 2))
sketch11.addConstraint(Sketcher.Constraint("Radius", 3, 1.0))
sketch11.addConstraint(Sketcher.Constraint("Radius", 5, 4.0))
sketch11.addConstraint(Sketcher.Constraint("Radius", 9, 1.5))
sketch11.addConstraint(Sketcher.Constraint("Radius", 12, 0.5))
sketch11.addConstraint(Sketcher.Constraint("DistanceY", 1, 2, 1, 1, 60.0))
sketch11.addConstraint(Sketcher.Constraint("Angle", 4, Q("83 deg")))
sketch11.addConstraint(Sketcher.Constraint("Angle", 13, Q("5 deg")))
sketch11.addConstraint(Sketcher.Constraint("DistanceY", 9, 3, -1, 1, 26.0))
sketch11.addConstraint(Sketcher.Constraint("DistanceX", -1, 1, 0, 2, 9.0))
sketch11.addConstraint(Sketcher.Constraint("DistanceX", -1, 1, 10, 2, 65.0))
sketch11.addConstraint(Sketcher.Constraint("DistanceX", -1, 1, 14, 2, 80.0))
sketch11.addConstraint(Sketcher.Constraint("DistanceY", 7, 3, 23, 3, 17.5))
sketch11.addConstraint(Sketcher.Constraint("DistanceY", 12, 3, 16, 3, 50.395999))
sketch11.addConstraint(Sketcher.Constraint("DistanceX", 6, 1, 6, 2, 12.028539))
sketch11.addConstraint(Sketcher.Constraint("DistanceX", 0, 2, 0, 1, 19.115275))
sketch11.setExpression("Constraints[53]", "Params.sketch11_radius")
sketch11.setExpression("Constraints[54]", "Params.sketch11_radius2")
sketch11.setExpression("Constraints[55]", "Params.sketch11_radius3")
sketch11.setExpression("Constraints[56]", "Params.sketch11_radius4")
sketch11.setExpression("Constraints[57]", "Params.sketch11_height")
revolution2 = body.newObject("PartDesign::Revolution", "Revolution001")
revolution2.Profile = sketch11
revolution2.ReferenceAxis = (sketch11, ["V_Axis"])
revolution2.setExpression("Angle", "Params.revolution2_angle")

doc.recompute()
